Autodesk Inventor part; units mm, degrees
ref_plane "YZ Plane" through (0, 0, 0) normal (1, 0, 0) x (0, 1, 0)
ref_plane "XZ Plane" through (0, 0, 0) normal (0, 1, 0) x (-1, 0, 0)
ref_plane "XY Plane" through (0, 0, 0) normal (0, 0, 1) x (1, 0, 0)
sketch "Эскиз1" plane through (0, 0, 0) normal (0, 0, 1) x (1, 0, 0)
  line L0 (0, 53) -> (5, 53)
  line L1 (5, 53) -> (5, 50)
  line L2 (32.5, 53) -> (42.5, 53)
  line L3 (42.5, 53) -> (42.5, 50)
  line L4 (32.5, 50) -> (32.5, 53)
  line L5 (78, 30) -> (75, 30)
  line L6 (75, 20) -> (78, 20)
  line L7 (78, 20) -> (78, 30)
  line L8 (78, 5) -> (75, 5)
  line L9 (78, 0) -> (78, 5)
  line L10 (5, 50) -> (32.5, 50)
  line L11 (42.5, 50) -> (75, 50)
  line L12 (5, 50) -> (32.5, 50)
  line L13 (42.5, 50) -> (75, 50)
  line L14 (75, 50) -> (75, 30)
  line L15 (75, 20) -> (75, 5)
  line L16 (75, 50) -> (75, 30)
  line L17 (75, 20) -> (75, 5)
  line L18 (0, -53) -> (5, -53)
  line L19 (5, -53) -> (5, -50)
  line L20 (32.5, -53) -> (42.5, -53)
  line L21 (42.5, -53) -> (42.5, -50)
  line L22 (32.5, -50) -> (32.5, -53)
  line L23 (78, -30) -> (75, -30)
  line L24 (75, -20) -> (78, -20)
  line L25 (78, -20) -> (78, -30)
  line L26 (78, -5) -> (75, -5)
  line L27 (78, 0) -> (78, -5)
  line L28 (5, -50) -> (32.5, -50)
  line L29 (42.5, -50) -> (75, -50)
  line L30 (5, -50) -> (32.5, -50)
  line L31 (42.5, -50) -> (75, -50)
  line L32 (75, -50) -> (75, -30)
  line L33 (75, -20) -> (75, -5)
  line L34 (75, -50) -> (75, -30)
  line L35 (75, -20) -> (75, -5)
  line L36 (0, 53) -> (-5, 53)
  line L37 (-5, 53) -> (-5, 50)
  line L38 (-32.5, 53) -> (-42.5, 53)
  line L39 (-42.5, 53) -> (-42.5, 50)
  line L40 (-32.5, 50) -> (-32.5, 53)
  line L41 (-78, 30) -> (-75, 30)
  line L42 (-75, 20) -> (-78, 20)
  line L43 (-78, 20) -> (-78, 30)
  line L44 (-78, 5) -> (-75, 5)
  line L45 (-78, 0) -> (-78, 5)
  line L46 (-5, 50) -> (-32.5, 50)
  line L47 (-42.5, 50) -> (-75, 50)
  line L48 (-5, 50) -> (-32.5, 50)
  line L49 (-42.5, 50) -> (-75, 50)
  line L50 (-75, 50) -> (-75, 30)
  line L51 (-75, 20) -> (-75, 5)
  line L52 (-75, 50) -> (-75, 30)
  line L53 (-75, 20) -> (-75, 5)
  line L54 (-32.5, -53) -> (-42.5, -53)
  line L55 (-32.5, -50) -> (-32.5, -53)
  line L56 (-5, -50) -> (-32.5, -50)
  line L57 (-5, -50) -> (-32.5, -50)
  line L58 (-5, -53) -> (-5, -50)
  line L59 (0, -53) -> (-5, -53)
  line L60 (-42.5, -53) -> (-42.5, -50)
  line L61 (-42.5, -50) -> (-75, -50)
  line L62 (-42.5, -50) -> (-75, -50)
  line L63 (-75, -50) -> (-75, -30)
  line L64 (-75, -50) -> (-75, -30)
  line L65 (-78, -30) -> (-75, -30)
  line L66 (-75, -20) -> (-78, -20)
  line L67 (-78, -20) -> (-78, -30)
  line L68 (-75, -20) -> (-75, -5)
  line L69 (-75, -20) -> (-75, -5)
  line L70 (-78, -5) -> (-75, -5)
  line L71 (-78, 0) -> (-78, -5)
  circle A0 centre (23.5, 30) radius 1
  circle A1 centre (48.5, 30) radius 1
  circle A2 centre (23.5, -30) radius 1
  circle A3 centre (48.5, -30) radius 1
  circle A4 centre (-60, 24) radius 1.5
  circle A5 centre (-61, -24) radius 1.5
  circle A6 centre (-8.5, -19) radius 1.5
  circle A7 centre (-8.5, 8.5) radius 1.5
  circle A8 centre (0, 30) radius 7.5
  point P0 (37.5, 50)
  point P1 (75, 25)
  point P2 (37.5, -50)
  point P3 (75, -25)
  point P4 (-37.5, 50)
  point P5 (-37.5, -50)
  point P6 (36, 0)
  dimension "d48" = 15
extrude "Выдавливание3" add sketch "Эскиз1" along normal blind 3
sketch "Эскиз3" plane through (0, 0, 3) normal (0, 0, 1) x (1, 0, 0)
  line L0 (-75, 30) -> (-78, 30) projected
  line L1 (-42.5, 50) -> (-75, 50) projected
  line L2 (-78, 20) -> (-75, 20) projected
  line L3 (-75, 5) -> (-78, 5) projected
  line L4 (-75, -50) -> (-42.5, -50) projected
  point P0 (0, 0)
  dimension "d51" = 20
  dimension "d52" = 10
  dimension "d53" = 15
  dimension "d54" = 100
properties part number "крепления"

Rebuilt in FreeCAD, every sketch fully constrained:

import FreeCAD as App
import Part
import Sketcher

V = App.Vector


def add_polygon(sketch, points):
    """Adds a closed chain of lines whose ends are joined by coincident constraints."""
    first, n = sketch.GeometryCount, len(points)
    for a, b in zip(points, points[1:] + points[:1]):
        sketch.addGeometry(Part.LineSegment(App.Vector(*a, 0), App.Vector(*b, 0)), False)
    for i in range(n):
        sketch.addConstraint(Sketcher.Constraint("Coincident", first + i, 2, first + (i + 1) % n, 1))

doc = App.newDocument("Part")
body = doc.addObject("PartDesign::Body", "Body")

sketch1 = doc.addObject("Sketcher::SketchObject", "Sketch")
body.addObject(sketch1)
sketch1.AttachmentSupport = (doc.XY_Plane, [""])
sketch1.MapMode = "FlatFace"
add_polygon(sketch1, [(5, 53), (-5, 53), (-5, 50), (-32.5, 50), (-32.5, 53), (-42.5, 53), (-42.5, 50), (-75, 50), (-75, 30), (-78, 30), (-78, 20), (-75, 20), (-75, 5), (-78, 5), (-78, -5), (-75, -5), (-75, -20), (-78, -20), (-78, -30), (-75, -30), (-75, -50), (-42.5, -50), (-42.5, -53), (-32.5, -53), (-32.5, -50), (-5, -50), (-5, -53), (5, -53), (5, -50), (32.5, -50), (32.5, -53), (42.5, -53), (42.5, -50), (75, -50), (75, -30), (78, -30), (78, -20), (75, -20), (75, -5), (78, -5), (78, 5), (75, 5), (75, 20), (78, 20), (78, 30), (75, 30), (75, 50), (42.5, 50), (42.5, 53), (32.5, 53), (32.5, 50), (5, 50)])
sketch1.addGeometry(Part.Circle(V(-61, -24, 0), V(0, 0, 1), 1.5), False)
sketch1.addGeometry(Part.Circle(V(-8.5, -19, 0), V(0, 0, 1), 1.5), False)
sketch1.addGeometry(Part.Circle(V(23.5, -30, 0), V(0, 0, 1), 1), False)
sketch1.addGeometry(Part.Circle(V(48.5, -30, 0), V(0, 0, 1), 1), False)
sketch1.addGeometry(Part.Circle(V(-60, 24, 0), V(0, 0, 1), 1.5), False)
sketch1.addGeometry(Part.Circle(V(-8.5, 8.5, 0), V(0, 0, 1), 1.5), False)
sketch1.addGeometry(Part.Circle(V(0, 30, 0), V(0, 0, 1), 7.5), False)
sketch1.addGeometry(Part.Circle(V(23.5, 30, 0), V(0, 0, 1), 1), False)
sketch1.addGeometry(Part.Circle(V(48.5, 30, 0), V(0, 0, 1), 1), False)
sketch1.addConstraint([
    Sketcher.Constraint("Horizontal", 0),
    Sketcher.Constraint("Vertical", 1),
    Sketcher.Constraint("Horizontal", 2),
    Sketcher.Constraint("Vertical", 3),
    Sketcher.Constraint("Horizontal", 4),
    Sketcher.Constraint("Vertical", 5),
    Sketcher.Constraint("Horizontal", 6),
    Sketcher.Constraint("Vertical", 7),
    Sketcher.Constraint("Horizontal", 8),
    Sketcher.Constraint("Vertical", 9),
    Sketcher.Constraint("Horizontal", 10),
    Sketcher.Constraint("Vertical", 11),
    Sketcher.Constraint("Horizontal", 12),
    Sketcher.Constraint("Vertical", 13),
    Sketcher.Constraint("Horizontal", 14),
    Sketcher.Constraint("Vertical", 15),
    Sketcher.Constraint("Horizontal", 16),
    Sketcher.Constraint("Vertical", 17),
    Sketcher.Constraint("Horizontal", 18),
    Sketcher.Constraint("Vertical", 19),
    Sketcher.Constraint("Horizontal", 20),
    Sketcher.Constraint("Vertical", 21),
    Sketcher.Constraint("Horizontal", 22),
    Sketcher.Constraint("Vertical", 23),
    Sketcher.Constraint("Horizontal", 24),
    Sketcher.Constraint("Vertical", 25),
    Sketcher.Constraint("Horizontal", 26),
    Sketcher.Constraint("Vertical", 27),
    Sketcher.Constraint("Horizontal", 28),
    Sketcher.Constraint("Vertical", 29),
    Sketcher.Constraint("Horizontal", 30),
    Sketcher.Constraint("Vertical", 31),
    Sketcher.Constraint("Horizontal", 32),
    Sketcher.Constraint("Vertical", 33),
    Sketcher.Constraint("Horizontal", 34),
    Sketcher.Constraint("Vertical", 35),
    Sketcher.Constraint("Horizontal", 36),
    Sketcher.Constraint("Vertical", 37),
    Sketcher.Constraint("Horizontal", 38),
    Sketcher.Constraint("Vertical", 39),
    Sketcher.Constraint("Horizontal", 40),
    Sketcher.Constraint("Vertical", 41),
    Sketcher.Constraint("Horizontal", 42),
    Sketcher.Constraint("Vertical", 43),
    Sketcher.Constraint("Horizontal", 44),
    Sketcher.Constraint("Vertical", 45),
    Sketcher.Constraint("Horizontal", 46),
    Sketcher.Constraint("Vertical", 47),
    Sketcher.Constraint("Horizontal", 48),
    Sketcher.Constraint("Vertical", 49),
    Sketcher.Constraint("Horizontal", 50),
    Sketcher.Constraint("Vertical", 51),
    Sketcher.Constraint("Equal", 52, 53),
    Sketcher.Constraint("Equal", 54, 55),
    Sketcher.Constraint("Equal", 53, 56),
    Sketcher.Constraint("Equal", 56, 57),
    Sketcher.Constraint("Equal", 55, 59),
    Sketcher.Constraint("Equal", 59, 60),
    Sketcher.Constraint("Symmetric", 0, 2, 26, 2, -1, 1),
    Sketcher.Constraint("Symmetric", 2, 2, 28, 2, -1, 1),
    Sketcher.Constraint("Symmetric", 4, 2, 30, 2, -1, 1),
    Sketcher.Constraint("Symmetric", 6, 2, 32, 2, -1, 1),
    Sketcher.Constraint("Symmetric", 8, 2, 34, 2, -1, 1),
    Sketcher.Constraint("Symmetric", 10, 2, 36, 2, -1, 1),
    Sketcher.Constraint("Symmetric", 12, 2, 38, 2, -1, 1),
    Sketcher.Constraint("Symmetric", 14, 2, 40, 2, -1, 1),
    Sketcher.Constraint("Symmetric", 16, 2, 42, 2, -1, 1),
    Sketcher.Constraint("Symmetric", 18, 2, 44, 2, -1, 1),
    Sketcher.Constraint("Symmetric", 20, 2, 46, 2, -1, 1),
    Sketcher.Constraint("Symmetric", 22, 2, 48, 2, -1, 1),
    Sketcher.Constraint("Symmetric", 24, 2, 50, 2, -1, 1),
    Sketcher.Constraint("Symmetric", 24, 2, 27, 2, -2),
    Sketcher.Constraint("Symmetric", 22, 2, 29, 2, -2),
    Sketcher.Constraint("Symmetric", 20, 2, 31, 2, -2),
    Sketcher.Constraint("Symmetric", 18, 2, 33, 2, -2),
    Sketcher.Constraint("Symmetric", 16, 2, 35, 2, -2),
    Sketcher.Constraint("Symmetric", 14, 2, 37, 2, -2),
    Sketcher.Constraint("Symmetric", 54, 3, 59, 3, -1),
    Sketcher.Constraint("Symmetric", 55, 3, 60, 3, -1),
    Sketcher.Constraint("PointOnObject", 58, 3, -2),
    Sketcher.Constraint("Horizontal", 54, 3, 55, 3),
    Sketcher.Constraint("Horizontal", 58, 3, 59, 3),
    Sketcher.Constraint("Horizontal", 0, 2, 3, 2),
    Sketcher.Constraint("Horizontal", 2, 2, 5, 2),
    Sketcher.Constraint("Horizontal", 60, 3, 7, 2),
    Sketcher.Constraint("Vertical", 53, 3, 57, 3),
    Sketcher.Constraint("Vertical", 7, 2, 10, 2),
    Sketcher.Constraint("Vertical", 9, 2, 12, 2),
    Sketcher.Constraint("Equal", 0, 4),
    Sketcher.Constraint("Equal", 44, 1),
    Sketcher.Constraint("Equal", 48, 9),
    Sketcher.Constraint("Equal", 9, 13),
    Sketcher.Constraint("Diameter", 58, 15.0),
    Sketcher.Constraint("DistanceY", 11, 2, 11, 1, 15.0),
    Sketcher.Constraint("Diameter", 52, 3.0),
    Sketcher.Constraint("Diameter", 54, 2.0),
    Sketcher.Constraint("DistanceX", 0, 2, 0, 1, 10.0),
    Sketcher.Constraint("DistanceX", 8, 2, 8, 1, 3.0),
    Sketcher.Constraint("DistanceY", 7, 2, 7, 1, 20.0),
    Sketcher.Constraint("DistanceX", 2, 2, 2, 1, 27.5),
    Sketcher.Constraint("DistanceX", 6, 2, 6, 1, 32.5),
    Sketcher.Constraint("DistanceX", 52, 3, -1, 1, 61.0),
    Sketcher.Constraint("DistanceY", 52, 3, -1, 1, 24.0),
    Sketcher.Constraint("DistanceY", 53, 3, -1, 1, 19.0),
    Sketcher.Constraint("DistanceX", 56, 3, -1, 1, 60.0),
    Sketcher.Constraint("DistanceY", -1, 1, 56, 3, 24.0),
    Sketcher.Constraint("DistanceX", 53, 3, -1, 1, 8.5),
    Sketcher.Constraint("DistanceX", -1, 1, 54, 3, 23.5),
    Sketcher.Constraint("DistanceX", -1, 1, 55, 3, 48.5),
    Sketcher.Constraint("DistanceY", -1, 1, 57, 3, 8.5),
])
pad1 = doc.addObject("PartDesign::Pad", "Pad")
body.addObject(pad1)
pad1.Profile = sketch1
pad1.Length = 3

doc.recompute()
